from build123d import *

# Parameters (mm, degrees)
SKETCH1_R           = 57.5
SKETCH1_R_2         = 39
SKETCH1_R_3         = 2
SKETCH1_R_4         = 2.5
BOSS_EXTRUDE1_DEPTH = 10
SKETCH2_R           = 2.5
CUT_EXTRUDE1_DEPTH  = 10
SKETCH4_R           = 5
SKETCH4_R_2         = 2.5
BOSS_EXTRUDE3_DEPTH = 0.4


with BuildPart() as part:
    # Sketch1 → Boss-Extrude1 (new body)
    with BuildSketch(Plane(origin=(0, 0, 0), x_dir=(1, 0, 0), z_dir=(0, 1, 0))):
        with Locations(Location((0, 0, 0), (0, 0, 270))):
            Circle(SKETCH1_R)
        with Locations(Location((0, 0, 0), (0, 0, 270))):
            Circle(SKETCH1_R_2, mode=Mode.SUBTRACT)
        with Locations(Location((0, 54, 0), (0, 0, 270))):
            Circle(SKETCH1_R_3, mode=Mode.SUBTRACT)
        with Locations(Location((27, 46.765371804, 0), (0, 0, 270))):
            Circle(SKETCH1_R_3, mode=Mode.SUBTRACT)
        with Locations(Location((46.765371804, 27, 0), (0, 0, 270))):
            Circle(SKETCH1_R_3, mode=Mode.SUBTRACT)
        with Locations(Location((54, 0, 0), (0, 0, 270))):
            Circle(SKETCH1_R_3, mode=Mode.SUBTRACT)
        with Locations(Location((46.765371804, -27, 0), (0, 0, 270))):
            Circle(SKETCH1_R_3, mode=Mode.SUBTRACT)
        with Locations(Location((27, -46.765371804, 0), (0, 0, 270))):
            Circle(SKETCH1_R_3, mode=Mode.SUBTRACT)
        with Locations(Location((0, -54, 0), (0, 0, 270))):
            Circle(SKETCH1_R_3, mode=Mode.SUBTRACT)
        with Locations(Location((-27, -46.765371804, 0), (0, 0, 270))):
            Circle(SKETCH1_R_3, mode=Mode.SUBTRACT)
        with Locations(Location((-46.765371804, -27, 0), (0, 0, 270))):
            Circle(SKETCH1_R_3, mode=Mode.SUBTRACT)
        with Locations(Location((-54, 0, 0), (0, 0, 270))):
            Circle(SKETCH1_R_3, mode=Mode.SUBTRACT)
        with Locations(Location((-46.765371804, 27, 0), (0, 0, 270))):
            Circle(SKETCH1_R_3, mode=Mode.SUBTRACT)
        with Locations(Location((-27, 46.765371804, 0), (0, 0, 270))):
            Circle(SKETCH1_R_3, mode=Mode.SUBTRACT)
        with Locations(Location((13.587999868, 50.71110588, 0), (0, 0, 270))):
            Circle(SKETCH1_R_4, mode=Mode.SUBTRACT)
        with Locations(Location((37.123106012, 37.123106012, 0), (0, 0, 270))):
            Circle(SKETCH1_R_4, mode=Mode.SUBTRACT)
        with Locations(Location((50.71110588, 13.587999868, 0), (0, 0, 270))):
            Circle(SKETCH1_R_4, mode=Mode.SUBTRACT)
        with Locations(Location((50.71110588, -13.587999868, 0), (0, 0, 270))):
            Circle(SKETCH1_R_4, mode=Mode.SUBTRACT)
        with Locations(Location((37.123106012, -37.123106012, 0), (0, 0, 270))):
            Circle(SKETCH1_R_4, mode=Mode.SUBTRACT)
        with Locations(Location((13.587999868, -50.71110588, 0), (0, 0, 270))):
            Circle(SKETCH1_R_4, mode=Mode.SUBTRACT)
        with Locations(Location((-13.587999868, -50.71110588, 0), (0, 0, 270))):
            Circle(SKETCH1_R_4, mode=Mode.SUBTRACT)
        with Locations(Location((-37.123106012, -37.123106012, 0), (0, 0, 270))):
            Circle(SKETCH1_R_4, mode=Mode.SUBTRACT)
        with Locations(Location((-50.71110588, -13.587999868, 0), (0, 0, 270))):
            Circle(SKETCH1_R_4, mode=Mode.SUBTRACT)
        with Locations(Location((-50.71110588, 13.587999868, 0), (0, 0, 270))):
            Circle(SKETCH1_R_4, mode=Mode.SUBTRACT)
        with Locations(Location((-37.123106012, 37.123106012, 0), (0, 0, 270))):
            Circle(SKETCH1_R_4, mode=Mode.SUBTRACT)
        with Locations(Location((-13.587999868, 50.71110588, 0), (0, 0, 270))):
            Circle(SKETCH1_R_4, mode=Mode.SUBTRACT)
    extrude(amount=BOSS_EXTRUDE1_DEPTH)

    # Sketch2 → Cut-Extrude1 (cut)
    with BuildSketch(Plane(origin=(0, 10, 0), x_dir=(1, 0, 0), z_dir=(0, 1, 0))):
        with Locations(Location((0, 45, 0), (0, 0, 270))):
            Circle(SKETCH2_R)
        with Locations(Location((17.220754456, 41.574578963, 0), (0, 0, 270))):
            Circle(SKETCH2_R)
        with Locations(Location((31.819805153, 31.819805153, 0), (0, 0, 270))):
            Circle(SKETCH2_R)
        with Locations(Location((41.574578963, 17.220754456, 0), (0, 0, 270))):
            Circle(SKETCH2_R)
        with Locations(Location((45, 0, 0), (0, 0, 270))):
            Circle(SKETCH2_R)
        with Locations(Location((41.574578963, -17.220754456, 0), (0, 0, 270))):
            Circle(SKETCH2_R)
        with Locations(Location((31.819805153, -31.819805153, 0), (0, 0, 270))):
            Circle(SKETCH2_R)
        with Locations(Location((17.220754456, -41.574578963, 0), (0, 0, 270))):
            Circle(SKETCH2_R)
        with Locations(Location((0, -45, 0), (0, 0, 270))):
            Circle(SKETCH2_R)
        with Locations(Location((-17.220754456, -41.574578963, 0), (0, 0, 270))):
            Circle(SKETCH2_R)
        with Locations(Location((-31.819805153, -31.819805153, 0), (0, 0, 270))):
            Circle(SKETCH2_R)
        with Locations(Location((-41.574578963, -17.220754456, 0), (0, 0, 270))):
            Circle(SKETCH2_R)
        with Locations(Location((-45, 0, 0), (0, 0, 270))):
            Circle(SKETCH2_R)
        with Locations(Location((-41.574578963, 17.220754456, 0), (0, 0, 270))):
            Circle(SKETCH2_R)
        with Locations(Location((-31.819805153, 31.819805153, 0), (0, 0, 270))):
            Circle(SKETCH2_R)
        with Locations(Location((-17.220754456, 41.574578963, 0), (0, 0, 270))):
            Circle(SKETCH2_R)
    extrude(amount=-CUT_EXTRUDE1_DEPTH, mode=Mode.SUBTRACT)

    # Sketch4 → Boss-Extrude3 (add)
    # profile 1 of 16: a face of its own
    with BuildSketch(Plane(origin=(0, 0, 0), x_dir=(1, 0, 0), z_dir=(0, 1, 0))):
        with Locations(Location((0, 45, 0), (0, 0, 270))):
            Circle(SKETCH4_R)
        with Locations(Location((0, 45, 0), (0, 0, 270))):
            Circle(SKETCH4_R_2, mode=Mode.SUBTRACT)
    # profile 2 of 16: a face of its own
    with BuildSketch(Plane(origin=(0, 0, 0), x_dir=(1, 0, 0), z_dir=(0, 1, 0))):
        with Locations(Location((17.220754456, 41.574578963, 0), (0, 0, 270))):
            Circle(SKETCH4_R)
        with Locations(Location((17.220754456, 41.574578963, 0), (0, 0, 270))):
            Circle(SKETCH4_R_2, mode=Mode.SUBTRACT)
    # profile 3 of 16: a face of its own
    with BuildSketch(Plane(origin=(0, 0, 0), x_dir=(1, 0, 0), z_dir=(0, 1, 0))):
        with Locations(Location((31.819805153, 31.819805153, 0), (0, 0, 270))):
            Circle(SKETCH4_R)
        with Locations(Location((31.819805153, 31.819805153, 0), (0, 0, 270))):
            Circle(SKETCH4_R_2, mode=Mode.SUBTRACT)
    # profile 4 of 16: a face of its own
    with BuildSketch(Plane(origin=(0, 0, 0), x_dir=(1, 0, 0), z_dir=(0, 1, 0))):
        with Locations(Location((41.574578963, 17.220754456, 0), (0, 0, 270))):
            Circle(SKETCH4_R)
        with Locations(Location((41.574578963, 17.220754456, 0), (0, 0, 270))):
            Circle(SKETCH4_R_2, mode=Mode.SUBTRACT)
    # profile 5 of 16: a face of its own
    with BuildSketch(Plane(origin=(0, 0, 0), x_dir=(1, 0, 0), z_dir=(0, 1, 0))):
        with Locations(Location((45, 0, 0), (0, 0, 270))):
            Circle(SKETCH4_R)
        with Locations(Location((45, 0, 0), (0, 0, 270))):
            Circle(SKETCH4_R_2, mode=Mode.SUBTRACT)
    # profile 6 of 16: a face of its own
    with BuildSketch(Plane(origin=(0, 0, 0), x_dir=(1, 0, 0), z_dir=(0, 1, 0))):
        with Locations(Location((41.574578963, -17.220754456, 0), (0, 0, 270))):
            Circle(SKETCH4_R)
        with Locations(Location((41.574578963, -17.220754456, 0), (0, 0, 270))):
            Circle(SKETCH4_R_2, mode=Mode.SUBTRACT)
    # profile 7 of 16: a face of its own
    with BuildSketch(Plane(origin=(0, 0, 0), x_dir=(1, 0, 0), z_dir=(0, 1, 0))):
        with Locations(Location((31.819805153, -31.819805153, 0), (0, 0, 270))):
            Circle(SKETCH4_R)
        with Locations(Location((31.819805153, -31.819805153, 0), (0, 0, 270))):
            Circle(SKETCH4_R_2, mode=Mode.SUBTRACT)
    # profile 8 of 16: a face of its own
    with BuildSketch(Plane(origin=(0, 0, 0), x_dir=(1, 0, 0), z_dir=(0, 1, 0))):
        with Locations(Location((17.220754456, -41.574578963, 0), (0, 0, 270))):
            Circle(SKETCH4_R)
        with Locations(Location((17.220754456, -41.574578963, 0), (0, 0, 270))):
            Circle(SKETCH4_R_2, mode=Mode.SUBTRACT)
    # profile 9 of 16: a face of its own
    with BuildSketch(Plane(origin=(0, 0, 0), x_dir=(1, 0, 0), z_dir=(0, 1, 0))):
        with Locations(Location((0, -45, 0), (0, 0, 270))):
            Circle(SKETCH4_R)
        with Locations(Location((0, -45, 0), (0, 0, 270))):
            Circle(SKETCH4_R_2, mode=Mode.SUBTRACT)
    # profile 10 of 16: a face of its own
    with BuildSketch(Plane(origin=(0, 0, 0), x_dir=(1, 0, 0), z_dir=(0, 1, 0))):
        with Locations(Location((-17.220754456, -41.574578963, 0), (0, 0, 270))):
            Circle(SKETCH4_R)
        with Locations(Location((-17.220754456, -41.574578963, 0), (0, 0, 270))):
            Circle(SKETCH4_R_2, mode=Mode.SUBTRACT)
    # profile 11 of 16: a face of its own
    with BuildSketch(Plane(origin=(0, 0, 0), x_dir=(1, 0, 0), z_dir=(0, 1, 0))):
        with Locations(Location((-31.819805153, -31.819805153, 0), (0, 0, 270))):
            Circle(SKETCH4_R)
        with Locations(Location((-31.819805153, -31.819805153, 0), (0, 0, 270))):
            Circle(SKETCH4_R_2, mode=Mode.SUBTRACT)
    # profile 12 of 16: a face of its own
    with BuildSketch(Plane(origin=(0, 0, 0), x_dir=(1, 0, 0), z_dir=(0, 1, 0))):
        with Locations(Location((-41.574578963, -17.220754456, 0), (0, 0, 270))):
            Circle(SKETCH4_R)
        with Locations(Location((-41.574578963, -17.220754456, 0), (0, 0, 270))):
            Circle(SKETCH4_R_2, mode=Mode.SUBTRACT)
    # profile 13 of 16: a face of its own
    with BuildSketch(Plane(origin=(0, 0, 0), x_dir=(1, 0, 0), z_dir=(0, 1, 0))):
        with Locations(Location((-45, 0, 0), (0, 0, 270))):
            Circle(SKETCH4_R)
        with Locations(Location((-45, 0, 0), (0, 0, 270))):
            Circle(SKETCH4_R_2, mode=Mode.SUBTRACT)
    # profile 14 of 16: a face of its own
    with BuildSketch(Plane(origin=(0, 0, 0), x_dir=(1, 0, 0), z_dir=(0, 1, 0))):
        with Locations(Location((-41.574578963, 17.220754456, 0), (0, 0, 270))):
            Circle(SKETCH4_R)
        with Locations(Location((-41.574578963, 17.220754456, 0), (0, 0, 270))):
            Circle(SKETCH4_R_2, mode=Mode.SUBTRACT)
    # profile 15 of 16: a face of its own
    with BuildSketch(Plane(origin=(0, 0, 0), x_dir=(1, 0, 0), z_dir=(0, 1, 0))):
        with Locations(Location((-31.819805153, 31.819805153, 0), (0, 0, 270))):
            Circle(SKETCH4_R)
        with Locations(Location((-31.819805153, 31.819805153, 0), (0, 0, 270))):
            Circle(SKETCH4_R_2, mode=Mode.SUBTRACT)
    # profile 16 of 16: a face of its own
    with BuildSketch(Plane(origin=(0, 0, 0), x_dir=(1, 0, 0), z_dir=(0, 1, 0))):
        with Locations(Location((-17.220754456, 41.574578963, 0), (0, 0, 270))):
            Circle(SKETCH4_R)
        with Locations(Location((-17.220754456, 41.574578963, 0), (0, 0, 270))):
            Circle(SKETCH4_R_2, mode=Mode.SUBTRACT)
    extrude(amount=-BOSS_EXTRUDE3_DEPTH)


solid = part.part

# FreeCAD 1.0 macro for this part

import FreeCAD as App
import Part
import Sketcher
from FreeCAD import Vector

doc = App.newDocument("Part")
body = doc.addObject("PartDesign::Body", "Body")

# Sketch on XZ plane
sketch1 = body.newObject("Sketcher::SketchObject", "Sketch")
sketch1.AttachmentSupport = (doc.getObject("XZ_Plane"), [""])
sketch1.MapMode = "FlatFace"
sketch1.addGeometry([
    Part.Circle(Vector(0, 0, 0), Vector(0, 0, 1), 57.5),  # 0
    Part.Circle(Vector(-37.1, -37.1, 0), Vector(0, 0, 1), 2.5),  # 1
    Part.Circle(Vector(-46.8, -27, 0), Vector(0, 0, 1), 2),  # 2
    Part.Circle(Vector(-50.7, -13.6, 0), Vector(0, 0, 1), 2.5),  # 3
    Part.Circle(Vector(-27, -46.8, 0), Vector(0, 0, 1), 2),  # 4
    Part.Circle(Vector(-13.6, -50.7, 0), Vector(0, 0, 1), 2.5),  # 5
    Part.Circle(Vector(0, -54, 0), Vector(0, 0, 1), 2),  # 6
    Part.Circle(Vector(-54, 0, 0), Vector(0, 0, 1), 2),  # 7
    Part.Circle(Vector(-50.7, 13.6, 0), Vector(0, 0, 1), 2.5),  # 8
    Part.Circle(Vector(-46.8, 27, 0), Vector(0, 0, 1), 2),  # 9
    Part.Circle(Vector(-37.1, 37.1, 0), Vector(0, 0, 1), 2.5),  # 10
    Part.Circle(Vector(-27, 46.8, 0), Vector(0, 0, 1), 2),  # 11
    Part.Circle(Vector(-13.6, 50.7, 0), Vector(0, 0, 1), 2.5),  # 12
    Part.Circle(Vector(13.6, -50.7, 0), Vector(0, 0, 1), 2.5),  # 13
    Part.Circle(Vector(27, -46.8, 0), Vector(0, 0, 1), 2),  # 14
    Part.Circle(Vector(37.1, -37.1, 0), Vector(0, 0, 1), 2.5),  # 15
    Part.Circle(Vector(46.8, -27, 0), Vector(0, 0, 1), 2),  # 16
    Part.Circle(Vector(50.7, -13.6, 0), Vector(0, 0, 1), 2.5),  # 17
    Part.Circle(Vector(54, 0, 0), Vector(0, 0, 1), 2),  # 18
    Part.Circle(Vector(0, 0, 0), Vector(0, 0, 1), 39),  # 19
    Part.Circle(Vector(0, 54, 0), Vector(0, 0, 1), 2),  # 20
    Part.Circle(Vector(13.6, 50.7, 0), Vector(0, 0, 1), 2.5),  # 21
    Part.Circle(Vector(27, 46.8, 0), Vector(0, 0, 1), 2),  # 22
    Part.Circle(Vector(50.7, 13.6, 0), Vector(0, 0, 1), 2.5),  # 23
    Part.Circle(Vector(46.8, 27, 0), Vector(0, 0, 1), 2),  # 24
    Part.Circle(Vector(37.1, 37.1, 0), Vector(0, 0, 1), 2.5),  # 25
], False)
sketch1.addConstraint([
    Sketcher.Constraint("Coincident", 0, 3, -1, 1),
    Sketcher.Constraint("Coincident", 19, 3, -1, 1),
    Sketcher.Constraint("Equal", 1, 3),
    Sketcher.Constraint("Equal", 2, 4),
    Sketcher.Constraint("Equal", 3, 5),
    Sketcher.Constraint("Equal", 4, 6),
    Sketcher.Constraint("Equal", 6, 7),
    Sketcher.Constraint("Equal", 5, 8),
    Sketcher.Constraint("Equal", 7, 9),
    Sketcher.Constraint("Equal", 8, 10),
    Sketcher.Constraint("Equal", 9, 11),
    Sketcher.Constraint("Equal", 10, 12),
    Sketcher.Constraint("Equal", 12, 13),
    Sketcher.Constraint("Equal", 11, 14),
    Sketcher.Constraint("Equal", 13, 15),
    Sketcher.Constraint("Equal", 14, 16),
    Sketcher.Constraint("Equal", 15, 17),
    Sketcher.Constraint("Equal", 16, 18),
    Sketcher.Constraint("Equal", 18, 20),
    Sketcher.Constraint("Equal", 17, 21),
    Sketcher.Constraint("Equal", 20, 22),
    Sketcher.Constraint("Equal", 21, 23),
    Sketcher.Constraint("Equal", 22, 24),
    Sketcher.Constraint("Equal", 23, 25),
    Sketcher.Constraint("Symmetric", 12, 3, 13, 3, -1, 1),
    Sketcher.Constraint("Symmetric", 11, 3, 14, 3, -1, 1),
    Sketcher.Constraint("Symmetric", 10, 3, 15, 3, -1, 1),
    Sketcher.Constraint("Symmetric", 9, 3, 16, 3, -1, 1),
    Sketcher.Constraint("Symmetric", 8, 3, 17, 3, -1, 1),
    Sketcher.Constraint("Symmetric", 7, 3, 18, 3, -1, 1),
    Sketcher.Constraint("Symmetric", 6, 3, 20, 3, -1, 1),
    Sketcher.Constraint("Symmetric", 5, 3, 21, 3, -1, 1),
    Sketcher.Constraint("Symmetric", 4, 3, 22, 3, -1, 1),
    Sketcher.Constraint("Symmetric", 3, 3, 23, 3, -1, 1),
    Sketcher.Constraint("Symmetric", 2, 3, 24, 3, -1, 1),
    Sketcher.Constraint("Symmetric", 1, 3, 25, 3, -1, 1),
    Sketcher.Constraint("Symmetric", 5, 3, 13, 3, -2),
    Sketcher.Constraint("Symmetric", 4, 3, 14, 3, -2),
    Sketcher.Constraint("Symmetric", 1, 3, 15, 3, -2),
    Sketcher.Constraint("Symmetric", 2, 3, 16, 3, -2),
    Sketcher.Constraint("Symmetric", 3, 3, 17, 3, -2),
    Sketcher.Constraint("PointOnObject", 6, 3, -2),
    Sketcher.Constraint("PointOnObject", 7, 3, -1),
    Sketcher.Constraint("Diameter", 0, 115.0),
    Sketcher.Constraint("Diameter", 1, 5.0),
    Sketcher.Constraint("Diameter", 2, 4.0),
    Sketcher.Constraint("Diameter", 19, 78.0),
    Sketcher.Constraint("DistanceY", 2, 3, -1, 1, 27.0),
    Sketcher.Constraint("DistanceX", 4, 3, -1, 1, 27.0),
    Sketcher.Constraint("DistanceY", 6, 3, -1, 1, 54.0),
    Sketcher.Constraint("DistanceX", 7, 3, -1, 1, 54.0),
    Sketcher.Constraint("DistanceY", 3, 3, -1, 1, 13.588),
    Sketcher.Constraint("DistanceX", 5, 3, -1, 1, 13.588),
    Sketcher.Constraint("DistanceX", 3, 3, 1, 3, 13.588),
    Sketcher.Constraint("DistanceY", 5, 3, 1, 3, 13.588),
    Sketcher.Constraint("DistanceX", 2, 3, -1, 1, 46.765372),
    Sketcher.Constraint("DistanceY", 4, 3, -1, 1, 46.765372),
    Sketcher.Constraint("DistanceX", 1, 3, -1, 1, 37.123106),
    Sketcher.Constraint("DistanceY", 1, 3, -1, 1, 37.123106),
])
pad1 = body.newObject("PartDesign::Pad", "Pad")
pad1.Profile = sketch1
pad1.Length = 10
pad1.Reversed = True

# Sketch on XZ plane
sketch2 = body.newObject("Sketcher::SketchObject", "Sketch001")
sketch2.AttachmentSupport = (doc.getObject("XZ_Plane"), [""])
sketch2.MapMode = "FlatFace"
sketch2.AttachmentOffset = App.Placement(Vector(0, 0, -10), App.Rotation())
sketch2.addGeometry([
    Part.Circle(Vector(0, -45, 0), Vector(0, 0, 1), 2.5),  # 0
    Part.Circle(Vector(17.2, -41.6, 0), Vector(0, 0, 1), 2.5),  # 1
    Part.Circle(Vector(31.8, -31.8, 0), Vector(0, 0, 1), 2.5),  # 2
    Part.Circle(Vector(41.6, -17.2, 0), Vector(0, 0, 1), 2.5),  # 3
    Part.Circle(Vector(45, 0, 0), Vector(0, 0, 1), 2.5),  # 4
    Part.Circle(Vector(41.6, 17.2, 0), Vector(0, 0, 1), 2.5),  # 5
    Part.Circle(Vector(31.8, 31.8, 0), Vector(0, 0, 1), 2.5),  # 6
    Part.Circle(Vector(17.2, 41.6, 0), Vector(0, 0, 1), 2.5),  # 7
    Part.Circle(Vector(0, 45, 0), Vector(0, 0, 1), 2.5),  # 8
    Part.Circle(Vector(-17.2, 41.6, 0), Vector(0, 0, 1), 2.5),  # 9
    Part.Circle(Vector(-31.8, 31.8, 0), Vector(0, 0, 1), 2.5),  # 10
    Part.Circle(Vector(-41.6, 17.2, 0), Vector(0, 0, 1), 2.5),  # 11
    Part.Circle(Vector(-45, 0, 0), Vector(0, 0, 1), 2.5),  # 12
    Part.Circle(Vector(-41.6, -17.2, 0), Vector(0, 0, 1), 2.5),  # 13
    Part.Circle(Vector(-31.8, -31.8, 0), Vector(0, 0, 1), 2.5),  # 14
    Part.Circle(Vector(-17.2, -41.6, 0), Vector(0, 0, 1), 2.5),  # 15
], False)
sketch2.addConstraint([
    Sketcher.Constraint("Equal", 0, 1),
    Sketcher.Constraint("Equal", 1, 2),
    Sketcher.Constraint("Equal", 2, 3),
    Sketcher.Constraint("Equal", 3, 4),
    Sketcher.Constraint("Equal", 4, 5),
    Sketcher.Constraint("Equal", 5, 6),
    Sketcher.Constraint("Equal", 6, 7),
    Sketcher.Constraint("Equal", 7, 8),
    Sketcher.Constraint("Equal", 8, 9),
    Sketcher.Constraint("Equal", 9, 10),
    Sketcher.Constraint("Equal", 10, 11),
    Sketcher.Constraint("Equal", 11, 12),
    Sketcher.Constraint("Equal", 12, 13),
    Sketcher.Constraint("Equal", 13, 14),
    Sketcher.Constraint("Equal", 14, 15),
    Sketcher.Constraint("Symmetric", 0, 3, 8, 3, -1, 1),
    Sketcher.Constraint("Symmetric", 1, 3, 9, 3, -1, 1),
    Sketcher.Constraint("Symmetric", 2, 3, 10, 3, -1, 1),
    Sketcher.Constraint("Symmetric", 3, 3, 11, 3, -1, 1),
    Sketcher.Constraint("Symmetric", 4, 3, 12, 3, -1, 1),
    Sketcher.Constraint("Symmetric", 5, 3, 13, 3, -1, 1),
    Sketcher.Constraint("Symmetric", 6, 3, 14, 3, -1, 1),
    Sketcher.Constraint("Symmetric", 7, 3, 15, 3, -1, 1),
    Sketcher.Constraint("Symmetric", 7, 3, 9, 3, -2),
    Sketcher.Constraint("Symmetric", 6, 3, 10, 3, -2),
    Sketcher.Constraint("Symmetric", 5, 3, 11, 3, -2),
    Sketcher.Constraint("PointOnObject", 0, 3, -2),
    Sketcher.Constraint("PointOnObject", 4, 3, -1),
    Sketcher.Constraint("Diameter", 0, 5.0),
    Sketcher.Constraint("DistanceY", 0, 3, -1, 1, 45.0),
    Sketcher.Constraint("DistanceX", -1, 1, 4, 3, 45.0),
    Sketcher.Constraint("DistanceY", 1, 3, -1, 1, 41.574579),
    Sketcher.Constraint("DistanceX", -1, 1, 3, 3, 41.574579),
    Sketcher.Constraint("DistanceX", 1, 3, 2, 3, 14.599051),
    Sketcher.Constraint("DistanceY", 2, 3, 3, 3, 14.599051),
    Sketcher.Constraint("DistanceY", 3, 3, 5, 3, 34.441509),
    Sketcher.Constraint("DistanceX", 9, 3, 7, 3, 34.441509),
])
pocket1 = body.newObject("PartDesign::Pocket", "Pocket")
pocket1.Profile = sketch2
pocket1.Length = 10
pocket1.Reversed = True

# Sketch on XZ plane
sketch3 = body.newObject("Sketcher::SketchObject", "Sketch002")
sketch3.AttachmentSupport = (doc.getObject("XZ_Plane"), [""])
sketch3.MapMode = "FlatFace"
sketch3.addGeometry([
    Part.Circle(Vector(0, -45, 0), Vector(0, 0, 1), 5),  # 0
    Part.Circle(Vector(0, -45, 0), Vector(0, 0, 1), 2.5),  # 1
    Part.Circle(Vector(17.2, -41.6, 0), Vector(0, 0, 1), 5),  # 2
    Part.Circle(Vector(17.2, -41.6, 0), Vector(0, 0, 1), 2.5),  # 3
    Part.Circle(Vector(31.8, -31.8, 0), Vector(0, 0, 1), 5),  # 4
    Part.Circle(Vector(31.8, -31.8, 0), Vector(0, 0, 1), 2.5),  # 5
    Part.Circle(Vector(41.6, -17.2, 0), Vector(0, 0, 1), 5),  # 6
    Part.Circle(Vector(41.6, -17.2, 0), Vector(0, 0, 1), 2.5),  # 7
    Part.Circle(Vector(45, 0, 0), Vector(0, 0, 1), 5),  # 8
    Part.Circle(Vector(45, 0, 0), Vector(0, 0, 1), 2.5),  # 9
    Part.Circle(Vector(41.6, 17.2, 0), Vector(0, 0, 1), 5),  # 10
    Part.Circle(Vector(41.6, 17.2, 0), Vector(0, 0, 1), 2.5),  # 11
    Part.Circle(Vector(31.8, 31.8, 0), Vector(0, 0, 1), 5),  # 12
    Part.Circle(Vector(31.8, 31.8, 0), Vector(0, 0, 1), 2.5),  # 13
    Part.Circle(Vector(17.2, 41.6, 0), Vector(0, 0, 1), 5),  # 14
    Part.Circle(Vector(17.2, 41.6, 0), Vector(0, 0, 1), 2.5),  # 15
    Part.Circle(Vector(0, 45, 0), Vector(0, 0, 1), 5),  # 16
    Part.Circle(Vector(0, 45, 0), Vector(0, 0, 1), 2.5),  # 17
    Part.Circle(Vector(-17.2, 41.6, 0), Vector(0, 0, 1), 5),  # 18
    Part.Circle(Vector(-17.2, 41.6, 0), Vector(0, 0, 1), 2.5),  # 19
    Part.Circle(Vector(-31.8, 31.8, 0), Vector(0, 0, 1), 5),  # 20
    Part.Circle(Vector(-31.8, 31.8, 0), Vector(0, 0, 1), 2.5),  # 21
    Part.Circle(Vector(-41.6, 17.2, 0), Vector(0, 0, 1), 5),  # 22
    Part.Circle(Vector(-41.6, 17.2, 0), Vector(0, 0, 1), 2.5),  # 23
    Part.Circle(Vector(-45, 0, 0), Vector(0, 0, 1), 5),  # 24
    Part.Circle(Vector(-45, 0, 0), Vector(0, 0, 1), 2.5),  # 25
    Part.Circle(Vector(-41.6, -17.2, 0), Vector(0, 0, 1), 5),  # 26
    Part.Circle(Vector(-41.6, -17.2, 0), Vector(0, 0, 1), 2.5),  # 27
    Part.Circle(Vector(-31.8, -31.8, 0), Vector(0, 0, 1), 5),  # 28
    Part.Circle(Vector(-31.8, -31.8, 0), Vector(0, 0, 1), 2.5),  # 29
    Part.Circle(Vector(-17.2, -41.6, 0), Vector(0, 0, 1), 5),  # 30
    Part.Circle(Vector(-17.2, -41.6, 0), Vector(0, 0, 1), 2.5),  # 31
], False)
sketch3.addConstraint([
    Sketcher.Constraint("Coincident", 1, 3, 0, 3),
    Sketcher.Constraint("Coincident", 3, 3, 2, 3),
    Sketcher.Constraint("Coincident", 5, 3, 4, 3),
    Sketcher.Constraint("Coincident", 7, 3, 6, 3),
    Sketcher.Constraint("Coincident", 9, 3, 8, 3),
    Sketcher.Constraint("Coincident", 11, 3, 10, 3),
    Sketcher.Constraint("Coincident", 13, 3, 12, 3),
    Sketcher.Constraint("Coincident", 15, 3, 14, 3),
    Sketcher.Constraint("Coincident", 17, 3, 16, 3),
    Sketcher.Constraint("Coincident", 19, 3, 18, 3),
    Sketcher.Constraint("Coincident", 21, 3, 20, 3),
    Sketcher.Constraint("Coincident", 23, 3, 22, 3),
    Sketcher.Constraint("Coincident", 25, 3, 24, 3),
    Sketcher.Constraint("Coincident", 27, 3, 26, 3),
    Sketcher.Constraint("Coincident", 29, 3, 28, 3),
    Sketcher.Constraint("Coincident", 31, 3, 30, 3),
    Sketcher.Constraint("Equal", 0, 2),
    Sketcher.Constraint("Equal", 1, 3),
    Sketcher.Constraint("Equal", 2, 4),
    Sketcher.Constraint("Equal", 3, 5),
    Sketcher.Constraint("Equal", 4, 6),
    Sketcher.Constraint("Equal", 5, 7),
    Sketcher.Constraint("Equal", 6, 8),
    Sketcher.Constraint("Equal", 7, 9),
    Sketcher.Constraint("Equal", 8, 10),
    Sketcher.Constraint("Equal", 9, 11),
    Sketcher.Constraint("Equal", 10, 12),
    Sketcher.Constraint("Equal", 11, 13),
    Sketcher.Constraint("Equal", 12, 14),
    Sketcher.Constraint("Equal", 13, 15),
    Sketcher.Constraint("Equal", 14, 16),
    Sketcher.Constraint("Equal", 15, 17),
    Sketcher.Constraint("Equal", 16, 18),
    Sketcher.Constraint("Equal", 17, 19),
    Sketcher.Constraint("Equal", 18, 20),
    Sketcher.Constraint("Equal", 19, 21),
    Sketcher.Constraint("Equal", 20, 22),
    Sketcher.Constraint("Equal", 21, 23),
    Sketcher.Constraint("Equal", 22, 24),
    Sketcher.Constraint("Equal", 23, 25),
    Sketcher.Constraint("Equal", 24, 26),
    Sketcher.Constraint("Equal", 25, 27),
    Sketcher.Constraint("Equal", 26, 28),
    Sketcher.Constraint("Equal", 27, 29),
    Sketcher.Constraint("Equal", 28, 30),
    Sketcher.Constraint("Equal", 29, 31),
    Sketcher.Constraint("Symmetric", 0, 3, 16, 3, -1, 1),
    Sketcher.Constraint("Symmetric", 2, 3, 18, 3, -1, 1),
    Sketcher.Constraint("Symmetric", 4, 3, 20, 3, -1, 1),
    Sketcher.Constraint("Symmetric", 6, 3, 22, 3, -1, 1),
    Sketcher.Constraint("Symmetric", 8, 3, 24, 3, -1, 1),
    Sketcher.Constraint("Symmetric", 10, 3, 26, 3, -1, 1),
    Sketcher.Constraint("Symmetric", 12, 3, 28, 3, -1, 1),
    Sketcher.Constraint("Symmetric", 14, 3, 30, 3, -1, 1),
    Sketcher.Constraint("Symmetric", 14, 3, 18, 3, -2),
    Sketcher.Constraint("Symmetric", 12, 3, 20, 3, -2),
    Sketcher.Constraint("Symmetric", 10, 3, 22, 3, -2),
    Sketcher.Constraint("PointOnObject", 0, 3, -2),
    Sketcher.Constraint("PointOnObject", 8, 3, -1),
    Sketcher.Constraint("Diameter", 0, 10.0),
    Sketcher.Constraint("Diameter", 1, 5.0),
    Sketcher.Constraint("DistanceY", 0, 3, -1, 1, 45.0),
    Sketcher.Constraint("DistanceX", -1, 1, 8, 3, 45.0),
    Sketcher.Constraint("DistanceY", 2, 3, -1, 1, 41.574579),
    Sketcher.Constraint("DistanceX", -1, 1, 6, 3, 41.574579),
    Sketcher.Constraint("DistanceX", 2, 3, 4, 3, 14.599051),
    Sketcher.Constraint("DistanceY", 4, 3, 6, 3, 14.599051),
    Sketcher.Constraint("DistanceY", 6, 3, 10, 3, 34.441509),
    Sketcher.Constraint("DistanceX", 18, 3, 14, 3, 34.441509),
])
pad2 = body.newObject("PartDesign::Pad", "Pad001")
pad2.Profile = sketch3
pad2.Length = 0.4

doc.recompute()
